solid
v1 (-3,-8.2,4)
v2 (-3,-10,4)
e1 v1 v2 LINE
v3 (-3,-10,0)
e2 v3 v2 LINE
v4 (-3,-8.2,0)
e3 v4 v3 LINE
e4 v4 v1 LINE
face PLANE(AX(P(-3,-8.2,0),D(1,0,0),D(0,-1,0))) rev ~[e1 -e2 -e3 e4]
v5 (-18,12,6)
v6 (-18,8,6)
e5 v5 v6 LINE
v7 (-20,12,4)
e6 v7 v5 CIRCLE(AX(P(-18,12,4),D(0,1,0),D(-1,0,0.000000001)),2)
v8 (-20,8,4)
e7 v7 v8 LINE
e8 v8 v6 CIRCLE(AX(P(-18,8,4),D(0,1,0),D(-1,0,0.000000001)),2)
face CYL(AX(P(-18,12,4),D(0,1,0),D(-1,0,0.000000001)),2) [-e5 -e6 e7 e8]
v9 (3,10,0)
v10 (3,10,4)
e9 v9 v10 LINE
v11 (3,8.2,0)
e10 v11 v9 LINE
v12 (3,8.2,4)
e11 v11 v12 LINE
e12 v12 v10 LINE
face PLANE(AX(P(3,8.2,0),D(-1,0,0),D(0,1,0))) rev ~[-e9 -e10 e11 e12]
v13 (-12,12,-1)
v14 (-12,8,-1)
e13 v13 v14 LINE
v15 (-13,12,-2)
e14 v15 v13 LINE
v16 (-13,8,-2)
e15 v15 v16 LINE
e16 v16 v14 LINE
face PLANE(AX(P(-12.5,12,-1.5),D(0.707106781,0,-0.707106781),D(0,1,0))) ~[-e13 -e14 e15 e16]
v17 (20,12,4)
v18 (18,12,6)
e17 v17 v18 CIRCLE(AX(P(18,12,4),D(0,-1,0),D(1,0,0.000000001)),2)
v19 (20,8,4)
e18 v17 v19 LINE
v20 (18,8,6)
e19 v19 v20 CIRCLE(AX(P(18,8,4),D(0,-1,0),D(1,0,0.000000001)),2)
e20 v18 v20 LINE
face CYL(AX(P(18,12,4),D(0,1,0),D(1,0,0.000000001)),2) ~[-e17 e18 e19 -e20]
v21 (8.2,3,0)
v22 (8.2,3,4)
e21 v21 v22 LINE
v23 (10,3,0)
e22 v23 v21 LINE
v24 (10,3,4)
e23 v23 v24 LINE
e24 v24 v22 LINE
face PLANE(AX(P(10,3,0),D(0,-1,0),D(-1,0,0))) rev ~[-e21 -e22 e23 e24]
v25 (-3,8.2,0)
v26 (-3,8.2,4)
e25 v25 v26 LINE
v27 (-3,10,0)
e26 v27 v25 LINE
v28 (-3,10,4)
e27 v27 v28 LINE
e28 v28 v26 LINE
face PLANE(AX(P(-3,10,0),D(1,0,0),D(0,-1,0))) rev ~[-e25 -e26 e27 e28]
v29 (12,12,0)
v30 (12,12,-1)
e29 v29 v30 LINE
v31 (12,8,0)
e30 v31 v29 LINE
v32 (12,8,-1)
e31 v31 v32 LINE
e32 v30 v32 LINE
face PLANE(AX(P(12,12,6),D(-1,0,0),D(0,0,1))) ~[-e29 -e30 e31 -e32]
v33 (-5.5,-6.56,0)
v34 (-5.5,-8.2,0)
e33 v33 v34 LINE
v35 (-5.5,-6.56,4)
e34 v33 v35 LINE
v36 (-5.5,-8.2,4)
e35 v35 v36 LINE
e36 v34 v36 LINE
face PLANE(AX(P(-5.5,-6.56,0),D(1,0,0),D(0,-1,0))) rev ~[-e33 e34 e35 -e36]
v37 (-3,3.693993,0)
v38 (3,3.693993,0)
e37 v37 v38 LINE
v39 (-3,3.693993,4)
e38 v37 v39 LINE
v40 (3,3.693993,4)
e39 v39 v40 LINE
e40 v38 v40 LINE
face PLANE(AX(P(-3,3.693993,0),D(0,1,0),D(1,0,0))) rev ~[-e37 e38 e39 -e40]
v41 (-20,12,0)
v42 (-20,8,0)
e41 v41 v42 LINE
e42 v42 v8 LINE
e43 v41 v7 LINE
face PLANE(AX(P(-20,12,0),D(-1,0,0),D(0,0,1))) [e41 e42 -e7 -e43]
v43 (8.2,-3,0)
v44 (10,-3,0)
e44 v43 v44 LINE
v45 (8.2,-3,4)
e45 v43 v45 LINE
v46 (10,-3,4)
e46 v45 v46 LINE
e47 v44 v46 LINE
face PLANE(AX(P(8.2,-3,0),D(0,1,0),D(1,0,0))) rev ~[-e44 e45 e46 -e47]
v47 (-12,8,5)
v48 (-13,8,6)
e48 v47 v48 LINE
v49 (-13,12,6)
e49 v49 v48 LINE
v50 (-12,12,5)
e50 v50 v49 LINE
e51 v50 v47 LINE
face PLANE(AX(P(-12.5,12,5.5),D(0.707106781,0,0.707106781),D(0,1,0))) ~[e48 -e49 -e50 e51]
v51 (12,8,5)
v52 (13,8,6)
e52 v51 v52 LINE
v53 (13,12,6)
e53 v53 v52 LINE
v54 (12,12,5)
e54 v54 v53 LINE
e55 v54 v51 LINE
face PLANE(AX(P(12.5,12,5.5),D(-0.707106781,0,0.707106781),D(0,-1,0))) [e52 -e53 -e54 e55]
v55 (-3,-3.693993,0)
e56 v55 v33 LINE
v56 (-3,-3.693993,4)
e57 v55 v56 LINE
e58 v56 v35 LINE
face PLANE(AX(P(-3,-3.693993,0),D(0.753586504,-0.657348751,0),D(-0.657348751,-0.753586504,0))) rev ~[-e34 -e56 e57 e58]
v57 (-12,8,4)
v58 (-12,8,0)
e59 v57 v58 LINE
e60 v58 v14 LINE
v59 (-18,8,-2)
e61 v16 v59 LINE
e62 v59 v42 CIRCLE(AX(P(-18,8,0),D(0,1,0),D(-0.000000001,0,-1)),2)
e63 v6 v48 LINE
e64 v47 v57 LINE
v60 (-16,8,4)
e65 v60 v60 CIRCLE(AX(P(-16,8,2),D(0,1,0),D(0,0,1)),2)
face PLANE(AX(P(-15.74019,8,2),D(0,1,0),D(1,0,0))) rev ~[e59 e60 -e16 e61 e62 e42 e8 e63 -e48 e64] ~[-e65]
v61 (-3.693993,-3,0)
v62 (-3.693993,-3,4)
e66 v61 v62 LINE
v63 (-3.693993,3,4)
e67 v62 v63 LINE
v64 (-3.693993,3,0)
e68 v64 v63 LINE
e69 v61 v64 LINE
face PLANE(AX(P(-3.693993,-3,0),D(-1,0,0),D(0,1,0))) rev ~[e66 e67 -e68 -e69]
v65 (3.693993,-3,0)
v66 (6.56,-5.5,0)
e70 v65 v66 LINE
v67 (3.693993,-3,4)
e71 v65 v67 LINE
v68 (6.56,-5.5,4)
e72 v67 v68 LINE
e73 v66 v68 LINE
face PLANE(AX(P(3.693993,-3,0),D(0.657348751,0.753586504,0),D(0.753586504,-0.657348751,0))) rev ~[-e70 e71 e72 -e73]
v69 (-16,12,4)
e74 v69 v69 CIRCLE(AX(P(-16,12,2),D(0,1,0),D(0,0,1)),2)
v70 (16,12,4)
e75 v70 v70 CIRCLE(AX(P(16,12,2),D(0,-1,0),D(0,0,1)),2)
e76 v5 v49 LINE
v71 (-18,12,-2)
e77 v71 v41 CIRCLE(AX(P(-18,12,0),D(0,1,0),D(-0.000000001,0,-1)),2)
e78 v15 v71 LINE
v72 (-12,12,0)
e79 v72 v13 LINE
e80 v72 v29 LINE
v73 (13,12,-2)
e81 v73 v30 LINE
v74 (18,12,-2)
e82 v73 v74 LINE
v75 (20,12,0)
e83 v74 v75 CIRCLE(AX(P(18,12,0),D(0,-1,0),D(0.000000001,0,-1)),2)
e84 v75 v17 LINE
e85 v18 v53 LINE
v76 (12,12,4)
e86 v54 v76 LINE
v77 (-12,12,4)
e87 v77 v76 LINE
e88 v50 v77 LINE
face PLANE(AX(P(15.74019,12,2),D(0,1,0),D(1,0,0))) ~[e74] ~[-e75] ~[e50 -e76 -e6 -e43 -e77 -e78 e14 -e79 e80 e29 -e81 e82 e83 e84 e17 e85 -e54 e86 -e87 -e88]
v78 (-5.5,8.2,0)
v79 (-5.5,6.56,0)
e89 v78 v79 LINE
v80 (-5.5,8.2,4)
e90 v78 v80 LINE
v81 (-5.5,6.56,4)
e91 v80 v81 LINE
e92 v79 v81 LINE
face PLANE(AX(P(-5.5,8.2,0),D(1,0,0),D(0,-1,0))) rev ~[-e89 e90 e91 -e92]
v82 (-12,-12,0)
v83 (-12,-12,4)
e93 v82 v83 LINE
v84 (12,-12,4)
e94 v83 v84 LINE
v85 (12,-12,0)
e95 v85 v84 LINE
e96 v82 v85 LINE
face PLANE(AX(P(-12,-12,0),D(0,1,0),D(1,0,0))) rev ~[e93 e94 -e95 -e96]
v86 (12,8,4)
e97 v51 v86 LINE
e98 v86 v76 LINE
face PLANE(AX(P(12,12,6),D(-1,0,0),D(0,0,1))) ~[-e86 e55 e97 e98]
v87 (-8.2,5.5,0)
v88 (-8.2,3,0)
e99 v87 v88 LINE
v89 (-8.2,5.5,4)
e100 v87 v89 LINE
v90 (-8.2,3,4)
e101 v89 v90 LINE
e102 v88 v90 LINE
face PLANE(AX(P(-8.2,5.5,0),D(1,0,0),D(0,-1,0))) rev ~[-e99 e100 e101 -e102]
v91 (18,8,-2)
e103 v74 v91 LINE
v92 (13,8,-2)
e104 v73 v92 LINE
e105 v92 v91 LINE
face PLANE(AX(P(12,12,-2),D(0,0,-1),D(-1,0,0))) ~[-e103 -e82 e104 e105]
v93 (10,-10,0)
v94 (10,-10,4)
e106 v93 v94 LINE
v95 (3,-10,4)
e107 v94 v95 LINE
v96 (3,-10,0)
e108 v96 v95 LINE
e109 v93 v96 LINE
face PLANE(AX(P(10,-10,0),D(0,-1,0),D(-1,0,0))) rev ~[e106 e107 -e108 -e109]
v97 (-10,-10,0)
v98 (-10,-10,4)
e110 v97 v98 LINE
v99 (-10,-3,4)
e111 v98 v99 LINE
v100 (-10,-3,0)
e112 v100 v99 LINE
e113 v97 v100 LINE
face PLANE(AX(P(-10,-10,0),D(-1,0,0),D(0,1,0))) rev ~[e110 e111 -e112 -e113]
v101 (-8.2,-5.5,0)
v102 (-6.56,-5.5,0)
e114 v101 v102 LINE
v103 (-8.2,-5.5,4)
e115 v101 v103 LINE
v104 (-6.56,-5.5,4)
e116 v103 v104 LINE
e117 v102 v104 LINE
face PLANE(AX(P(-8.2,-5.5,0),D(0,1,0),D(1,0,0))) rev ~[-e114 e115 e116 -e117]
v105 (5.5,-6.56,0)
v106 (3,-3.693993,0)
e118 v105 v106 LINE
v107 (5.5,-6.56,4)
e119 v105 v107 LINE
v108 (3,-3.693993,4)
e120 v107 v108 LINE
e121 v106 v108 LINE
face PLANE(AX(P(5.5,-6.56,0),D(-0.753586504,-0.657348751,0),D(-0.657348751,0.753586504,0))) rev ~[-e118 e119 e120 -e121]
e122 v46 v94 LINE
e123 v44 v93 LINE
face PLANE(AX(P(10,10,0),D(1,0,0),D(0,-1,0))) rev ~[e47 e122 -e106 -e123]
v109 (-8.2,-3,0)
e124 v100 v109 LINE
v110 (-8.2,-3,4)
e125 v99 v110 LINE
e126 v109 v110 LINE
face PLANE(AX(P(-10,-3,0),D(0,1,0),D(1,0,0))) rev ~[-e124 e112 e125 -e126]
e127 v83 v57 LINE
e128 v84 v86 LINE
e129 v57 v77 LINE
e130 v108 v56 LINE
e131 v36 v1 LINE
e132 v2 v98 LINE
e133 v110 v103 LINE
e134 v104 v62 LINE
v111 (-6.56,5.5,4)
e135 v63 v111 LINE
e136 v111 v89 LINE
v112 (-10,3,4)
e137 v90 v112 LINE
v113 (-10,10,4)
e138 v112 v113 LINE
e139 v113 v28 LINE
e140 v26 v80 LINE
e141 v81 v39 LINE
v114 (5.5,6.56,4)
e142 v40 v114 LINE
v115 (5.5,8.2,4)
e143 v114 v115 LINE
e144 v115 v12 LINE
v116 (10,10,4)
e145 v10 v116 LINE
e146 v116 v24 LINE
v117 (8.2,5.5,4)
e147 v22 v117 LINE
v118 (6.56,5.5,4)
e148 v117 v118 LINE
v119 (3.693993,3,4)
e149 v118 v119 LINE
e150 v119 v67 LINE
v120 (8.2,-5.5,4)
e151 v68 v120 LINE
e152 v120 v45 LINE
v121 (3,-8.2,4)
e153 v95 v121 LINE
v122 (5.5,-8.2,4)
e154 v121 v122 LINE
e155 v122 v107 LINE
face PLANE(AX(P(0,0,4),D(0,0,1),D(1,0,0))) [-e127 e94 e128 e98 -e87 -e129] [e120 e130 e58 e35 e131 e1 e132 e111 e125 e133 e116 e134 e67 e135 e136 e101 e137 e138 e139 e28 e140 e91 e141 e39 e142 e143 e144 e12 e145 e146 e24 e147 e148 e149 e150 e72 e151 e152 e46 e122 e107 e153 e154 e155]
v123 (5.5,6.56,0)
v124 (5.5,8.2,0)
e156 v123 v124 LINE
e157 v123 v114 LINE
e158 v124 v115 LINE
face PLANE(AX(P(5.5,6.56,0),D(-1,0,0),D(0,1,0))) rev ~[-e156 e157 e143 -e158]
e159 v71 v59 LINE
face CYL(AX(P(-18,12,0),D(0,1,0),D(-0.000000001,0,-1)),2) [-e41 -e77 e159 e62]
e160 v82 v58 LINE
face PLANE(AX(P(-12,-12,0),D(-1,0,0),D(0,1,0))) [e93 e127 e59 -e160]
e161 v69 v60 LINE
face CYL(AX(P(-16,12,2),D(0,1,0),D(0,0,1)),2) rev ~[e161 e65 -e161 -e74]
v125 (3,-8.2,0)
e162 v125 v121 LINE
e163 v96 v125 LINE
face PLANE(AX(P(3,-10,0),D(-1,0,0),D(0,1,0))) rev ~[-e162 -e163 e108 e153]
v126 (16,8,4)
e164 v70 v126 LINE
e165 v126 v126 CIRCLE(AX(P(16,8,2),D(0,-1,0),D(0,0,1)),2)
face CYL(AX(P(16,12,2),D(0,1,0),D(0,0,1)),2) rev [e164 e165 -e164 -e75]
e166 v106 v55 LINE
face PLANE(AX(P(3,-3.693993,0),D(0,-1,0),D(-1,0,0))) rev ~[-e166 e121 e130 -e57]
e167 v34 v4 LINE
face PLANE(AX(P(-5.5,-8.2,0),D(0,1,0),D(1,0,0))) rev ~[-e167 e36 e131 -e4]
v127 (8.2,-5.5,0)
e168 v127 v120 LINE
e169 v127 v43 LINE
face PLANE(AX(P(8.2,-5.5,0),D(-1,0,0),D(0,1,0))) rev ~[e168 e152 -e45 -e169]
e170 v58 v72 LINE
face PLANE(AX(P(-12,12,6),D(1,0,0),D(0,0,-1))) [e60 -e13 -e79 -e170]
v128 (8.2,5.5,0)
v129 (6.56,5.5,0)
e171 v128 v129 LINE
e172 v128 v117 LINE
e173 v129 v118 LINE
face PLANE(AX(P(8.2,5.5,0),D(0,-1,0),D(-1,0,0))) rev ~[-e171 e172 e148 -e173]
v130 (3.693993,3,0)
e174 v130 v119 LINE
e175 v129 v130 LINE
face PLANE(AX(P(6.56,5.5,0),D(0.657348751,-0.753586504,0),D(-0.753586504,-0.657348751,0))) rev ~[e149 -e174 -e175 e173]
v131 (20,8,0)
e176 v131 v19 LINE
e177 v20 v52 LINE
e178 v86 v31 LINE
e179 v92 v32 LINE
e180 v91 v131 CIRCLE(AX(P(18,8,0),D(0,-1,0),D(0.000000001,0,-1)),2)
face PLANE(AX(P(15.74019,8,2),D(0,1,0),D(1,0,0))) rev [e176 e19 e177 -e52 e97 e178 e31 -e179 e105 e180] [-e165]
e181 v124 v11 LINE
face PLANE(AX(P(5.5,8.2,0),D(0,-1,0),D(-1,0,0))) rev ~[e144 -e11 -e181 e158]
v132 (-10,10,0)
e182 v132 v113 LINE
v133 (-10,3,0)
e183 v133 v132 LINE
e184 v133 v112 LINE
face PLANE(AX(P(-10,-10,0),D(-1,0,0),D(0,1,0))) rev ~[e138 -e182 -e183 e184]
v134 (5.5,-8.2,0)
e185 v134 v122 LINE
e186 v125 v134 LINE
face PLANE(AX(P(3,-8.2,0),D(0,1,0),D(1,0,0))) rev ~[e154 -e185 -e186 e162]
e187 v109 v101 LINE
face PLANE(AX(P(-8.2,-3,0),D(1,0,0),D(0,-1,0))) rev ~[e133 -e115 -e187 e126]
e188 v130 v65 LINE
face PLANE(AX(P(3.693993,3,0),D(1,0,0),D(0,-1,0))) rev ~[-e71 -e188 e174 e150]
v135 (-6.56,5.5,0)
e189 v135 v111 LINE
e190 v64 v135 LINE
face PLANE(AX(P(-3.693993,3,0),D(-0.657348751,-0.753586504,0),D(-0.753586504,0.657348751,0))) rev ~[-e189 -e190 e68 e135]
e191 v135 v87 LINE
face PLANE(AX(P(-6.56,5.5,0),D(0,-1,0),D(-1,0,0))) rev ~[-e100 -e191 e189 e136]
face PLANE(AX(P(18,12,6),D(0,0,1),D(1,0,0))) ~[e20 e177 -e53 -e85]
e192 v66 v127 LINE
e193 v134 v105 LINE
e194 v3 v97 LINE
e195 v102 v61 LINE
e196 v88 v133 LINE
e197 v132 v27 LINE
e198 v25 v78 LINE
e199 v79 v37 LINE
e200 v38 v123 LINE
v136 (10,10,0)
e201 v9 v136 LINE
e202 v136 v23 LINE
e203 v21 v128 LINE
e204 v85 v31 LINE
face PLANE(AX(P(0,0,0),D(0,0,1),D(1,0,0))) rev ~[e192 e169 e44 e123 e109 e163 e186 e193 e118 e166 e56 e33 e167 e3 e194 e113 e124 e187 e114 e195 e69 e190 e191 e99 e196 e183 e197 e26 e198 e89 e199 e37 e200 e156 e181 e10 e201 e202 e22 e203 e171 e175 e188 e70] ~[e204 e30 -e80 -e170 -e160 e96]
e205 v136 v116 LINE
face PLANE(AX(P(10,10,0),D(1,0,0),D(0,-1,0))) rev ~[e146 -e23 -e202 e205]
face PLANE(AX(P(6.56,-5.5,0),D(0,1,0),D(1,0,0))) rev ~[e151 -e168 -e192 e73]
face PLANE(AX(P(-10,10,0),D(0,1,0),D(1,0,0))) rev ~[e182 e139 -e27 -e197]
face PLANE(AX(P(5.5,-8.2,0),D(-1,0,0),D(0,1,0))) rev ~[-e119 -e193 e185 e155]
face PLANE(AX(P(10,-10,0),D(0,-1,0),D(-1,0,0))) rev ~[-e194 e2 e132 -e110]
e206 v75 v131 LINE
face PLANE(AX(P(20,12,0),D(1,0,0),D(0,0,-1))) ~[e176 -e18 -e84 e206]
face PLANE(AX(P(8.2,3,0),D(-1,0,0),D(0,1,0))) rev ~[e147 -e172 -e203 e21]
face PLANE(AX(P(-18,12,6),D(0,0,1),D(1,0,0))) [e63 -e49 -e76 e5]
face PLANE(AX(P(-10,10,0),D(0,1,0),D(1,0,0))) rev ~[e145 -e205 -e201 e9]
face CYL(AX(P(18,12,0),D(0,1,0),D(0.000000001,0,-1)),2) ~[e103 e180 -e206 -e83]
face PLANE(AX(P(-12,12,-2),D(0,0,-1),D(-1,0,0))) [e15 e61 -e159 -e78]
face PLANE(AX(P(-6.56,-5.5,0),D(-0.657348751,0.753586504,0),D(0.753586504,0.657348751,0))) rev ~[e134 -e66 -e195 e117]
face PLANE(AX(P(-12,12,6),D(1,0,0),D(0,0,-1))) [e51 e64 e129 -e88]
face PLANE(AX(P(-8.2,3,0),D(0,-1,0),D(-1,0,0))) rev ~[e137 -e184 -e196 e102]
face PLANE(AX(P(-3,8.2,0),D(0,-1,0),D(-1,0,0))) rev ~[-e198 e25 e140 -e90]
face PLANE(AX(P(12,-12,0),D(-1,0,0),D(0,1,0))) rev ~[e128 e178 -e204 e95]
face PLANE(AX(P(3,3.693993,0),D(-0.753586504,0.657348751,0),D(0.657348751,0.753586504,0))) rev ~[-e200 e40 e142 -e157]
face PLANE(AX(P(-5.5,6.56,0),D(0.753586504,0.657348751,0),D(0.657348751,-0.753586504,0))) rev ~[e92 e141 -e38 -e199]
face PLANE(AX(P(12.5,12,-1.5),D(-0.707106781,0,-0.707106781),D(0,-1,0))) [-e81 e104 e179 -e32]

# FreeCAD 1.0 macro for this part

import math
import FreeCAD as App
import Part
import Sketcher
from FreeCAD import Vector


def edges_at(feature, points):
    """Names of the edges that pass closest to the given points."""
    edges = feature.Shape.Edges
    near = lambda p: min(range(len(edges)), key=lambda i: edges[i].distToShape(Part.Vertex(*p))[0])
    return sorted({f"Edge{near(p) + 1}" for p in points})


def add_polygon(sketch, points):
    """Adds a closed chain of lines whose ends are joined by coincident constraints."""
    first, n = sketch.GeometryCount, len(points)
    for a, b in zip(points, points[1:] + points[:1]):
        sketch.addGeometry(Part.LineSegment(App.Vector(*a, 0), App.Vector(*b, 0)), False)
    for i in range(n):
        sketch.addConstraint(Sketcher.Constraint("Coincident", first + i, 2, first + (i + 1) % n, 1))

doc = App.newDocument("Part")
body = doc.addObject("PartDesign::Body", "Body")

# Sketch on XY plane
sketch1 = body.newObject("Sketcher::SketchObject", "Sketch")
sketch1.AttachmentSupport = (doc.getObject("XY_Plane"), [""])
sketch1.MapMode = "FlatFace"
add_polygon(sketch1, [(-12, 12), (-12, -12), (12, -12), (12, 12)])  # lines 0-3
add_polygon(sketch1, [(-10, 10), (-3, 10), (-3, 8.2), (-5.5, 8.2), (-5.5, 6.56), (-3, 3.693993), (3, 3.693993), (5.5, 6.56), (5.5, 8.2), (3, 8.2), (3, 10), (10, 10), (10, 3), (8.2, 3), (8.2, 5.5), (6.56, 5.5), (3.693993, 3), (3.693993, -3), (6.56, -5.5), (8.2, -5.5), (8.2, -3), (10, -3), (10, -10), (3, -10), (3, -8.2), (5.5, -8.2), (5.5, -6.56), (3, -3.693993), (-3, -3.693993), (-5.5, -6.56), (-5.5, -8.2), (-3, -8.2), (-3, -10), (-10, -10), (-10, -3), (-8.2, -3), (-8.2, -5.5), (-6.56, -5.5), (-3.693993, -3), (-3.693993, 3), (-6.56, 5.5), (-8.2, 5.5), (-8.2, 3), (-10, 3)])  # lines 4-47
sketch1.addConstraint([
    Sketcher.Constraint("Vertical", 0),
    Sketcher.Constraint("Horizontal", 1),
    Sketcher.Constraint("Vertical", 2),
    Sketcher.Constraint("Horizontal", 3),
    Sketcher.Constraint("Horizontal", 4),
    Sketcher.Constraint("Vertical", 5),
    Sketcher.Constraint("Horizontal", 6),
    Sketcher.Constraint("Vertical", 7),
    Sketcher.Constraint("Horizontal", 9),
    Sketcher.Constraint("Vertical", 11),
    Sketcher.Constraint("Horizontal", 12),
    Sketcher.Constraint("Vertical", 13),
    Sketcher.Constraint("Horizontal", 14),
    Sketcher.Constraint("Vertical", 15),
    Sketcher.Constraint("Horizontal", 16),
    Sketcher.Constraint("Vertical", 17),
    Sketcher.Constraint("Horizontal", 18),
    Sketcher.Constraint("Vertical", 20),
    Sketcher.Constraint("Horizontal", 22),
    Sketcher.Constraint("Vertical", 23),
    Sketcher.Constraint("Horizontal", 24),
    Sketcher.Constraint("Vertical", 25),
    Sketcher.Constraint("Horizontal", 26),
    Sketcher.Constraint("Vertical", 27),
    Sketcher.Constraint("Horizontal", 28),
    Sketcher.Constraint("Vertical", 29),
    Sketcher.Constraint("Horizontal", 31),
    Sketcher.Constraint("Vertical", 33),
    Sketcher.Constraint("Horizontal", 34),
    Sketcher.Constraint("Vertical", 35),
    Sketcher.Constraint("Horizontal", 36),
    Sketcher.Constraint("Vertical", 37),
    Sketcher.Constraint("Horizontal", 38),
    Sketcher.Constraint("Vertical", 39),
    Sketcher.Constraint("Horizontal", 40),
    Sketcher.Constraint("Vertical", 42),
    Sketcher.Constraint("Horizontal", 44),
    Sketcher.Constraint("Vertical", 45),
    Sketcher.Constraint("Horizontal", 46),
    Sketcher.Constraint("Vertical", 47),
    Sketcher.Constraint("Symmetric", 0, 2, 2, 2, -1, 1),
    Sketcher.Constraint("Symmetric", 4, 2, 26, 2, -1, 1),
    Sketcher.Constraint("Symmetric", 6, 2, 28, 2, -1, 1),
    Sketcher.Constraint("Symmetric", 8, 2, 30, 2, -1, 1),
    Sketcher.Constraint("Symmetric", 10, 2, 32, 2, -1, 1),
    Sketcher.Constraint("Symmetric", 12, 2, 34, 2, -1, 1),
    Sketcher.Constraint("Symmetric", 14, 2, 36, 2, -1, 1),
    Sketcher.Constraint("Symmetric", 16, 2, 38, 2, -1, 1),
    Sketcher.Constraint("Symmetric", 18, 2, 40, 2, -1, 1),
    Sketcher.Constraint("Symmetric", 19, 2, 41, 2, -1, 1),
    Sketcher.Constraint("Symmetric", 21, 2, 43, 2, -1, 1),
    Sketcher.Constraint("Symmetric", 23, 2, 45, 2, -1, 1),
    Sketcher.Constraint("Symmetric", 7, 2, 10, 2, -2),
    Sketcher.Constraint("Symmetric", 5, 2, 12, 2, -2),
    Sketcher.Constraint("Symmetric", 25, 2, 36, 2, -2),
    Sketcher.Constraint("Symmetric", 23, 2, 38, 2, -2),
    Sketcher.Constraint("Symmetric", 21, 2, 40, 2, -2),
    Sketcher.Constraint("Perpendicular", 8, 19),
    Sketcher.Constraint("Perpendicular", 10, 21),
    Sketcher.Constraint("Perpendicular", 19, 30),
    Sketcher.Constraint("Perpendicular", 21, 32),
    Sketcher.Constraint("Perpendicular", 32, 43),
    Sketcher.Constraint("Horizontal", 16, 2, 19, 2),
    Sketcher.Constraint("Horizontal", 20, 2, 23, 2),
    Sketcher.Constraint("Vertical", 5, 2, 8, 2),
    Sketcher.Constraint("Vertical", 37, 2, 46, 2),
    Sketcher.Constraint("Equal", 3, 0),
    Sketcher.Constraint("Equal", 46, 5),
    Sketcher.Constraint("Equal", 44, 7),
    Sketcher.Constraint("Equal", 36, 15),
    Sketcher.Constraint("Equal", 34, 17),
    Sketcher.Constraint("Equal", 31, 20),
    Sketcher.Constraint("DistanceX", 1, 1, 1, 2, 24.0),
    Sketcher.Constraint("DistanceX", 4, 1, 4, 2, 7.0),
    Sketcher.Constraint("DistanceX", 9, 1, 9, 2, 6.0),
    Sketcher.Constraint("DistanceX", 6, 2, 6, 1, 2.5),
    Sketcher.Constraint("DistanceX", 16, 2, 16, 1, 1.8),
    Sketcher.Constraint("DistanceX", 18, 2, 18, 1, 1.64),
    Sketcher.Constraint("Distance", 8, 3.803156),
])
pad1 = body.newObject("PartDesign::Pad", "Pad")
pad1.Profile = sketch1
pad1.Length = 4

# Sketch on XZ plane
sketch2 = body.newObject("Sketcher::SketchObject", "Sketch001")
sketch2.AttachmentSupport = (doc.getObject("XZ_Plane"), [""])
sketch2.MapMode = "FlatFace"
sketch2.AttachmentOffset = App.Placement(Vector(0, 0, -12), App.Rotation())
sketch2.addGeometry([
    Part.LineSegment(Vector(-12, -2, 0), Vector(-18, -2, 0)),  # 0
    Part.ArcOfCircle(Part.Circle(Vector(-18, 0, 0), Vector(0, 0, 1), 2), math.radians(-180), math.radians(-90)),  # 1
    Part.LineSegment(Vector(-20, 0, 0), Vector(-20, 4, 0)),  # 2
    Part.ArcOfCircle(Part.Circle(Vector(-18, 4, 0), Vector(0, 0, 1), 2), math.radians(90), math.radians(180)),  # 3
    Part.LineSegment(Vector(-18, 6, 0), Vector(-12, 6, 0)),  # 4
    Part.LineSegment(Vector(-12, 6, 0), Vector(-12, -2, 0)),  # 5
    Part.Circle(Vector(-16, 2, 0), Vector(0, 0, 1), 2),  # 6
], False)
sketch2.addConstraint([
    Sketcher.Constraint("Tangent", 0, 2, 1, 2),
    Sketcher.Constraint("Tangent", 1, 1, 2, 1),
    Sketcher.Constraint("Tangent", 2, 2, 3, 2),
    Sketcher.Constraint("Tangent", 3, 1, 4, 1),
    Sketcher.Constraint("Coincident", 4, 2, 5, 1),
    Sketcher.Constraint("Coincident", 5, 2, 0, 1),
    Sketcher.Constraint("Horizontal", 0),
    Sketcher.Constraint("Vertical", 2),
    Sketcher.Constraint("Horizontal", 4),
    Sketcher.Constraint("Vertical", 5),
    Sketcher.Constraint("Equal", 1, 3),
    Sketcher.Constraint("Equal", 3, 6),
    Sketcher.Constraint("PointOnObject", 1, 3, -1),
    Sketcher.Constraint("Diameter", 6, 4.0),
    Sketcher.Constraint("DistanceX", 0, 2, 0, 1, 6.0),
    Sketcher.Constraint("DistanceY", 2, 1, 2, 2, 4.0),
    Sketcher.Constraint("DistanceX", 1, 3, -1, 1, 18.0),
    Sketcher.Constraint("DistanceX", 6, 3, -1, 1, 16.0),
    Sketcher.Constraint("DistanceY", -1, 1, 6, 3, 2.0),
])
pad2 = body.newObject("PartDesign::Pad", "Pad001")
pad2.Profile = sketch2
pad2.Length = 4
doc.recompute()

chamfer = body.newObject("PartDesign::Chamfer", "Chamfer")
chamfer.Base = (pad2, edges_at(pad2, [(-12, 10, -2), (-12, 10, 6)]))
chamfer.Size = 1
doc.recompute()

mirrored = body.newObject("PartDesign::Mirrored", "Mirrored")
mirrored.Originals = [pad2]
mirrored.MirrorPlane = (doc.getObject("YZ_Plane"), [""])
body.Tip = mirrored
doc.recompute()

chamfer2 = body.newObject("PartDesign::Chamfer", "Chamfer001")
chamfer2.Base = (mirrored, edges_at(mirrored, [(12, 10, -2), (12, 10, 6)]))
chamfer2.Size = 1

doc.recompute()
